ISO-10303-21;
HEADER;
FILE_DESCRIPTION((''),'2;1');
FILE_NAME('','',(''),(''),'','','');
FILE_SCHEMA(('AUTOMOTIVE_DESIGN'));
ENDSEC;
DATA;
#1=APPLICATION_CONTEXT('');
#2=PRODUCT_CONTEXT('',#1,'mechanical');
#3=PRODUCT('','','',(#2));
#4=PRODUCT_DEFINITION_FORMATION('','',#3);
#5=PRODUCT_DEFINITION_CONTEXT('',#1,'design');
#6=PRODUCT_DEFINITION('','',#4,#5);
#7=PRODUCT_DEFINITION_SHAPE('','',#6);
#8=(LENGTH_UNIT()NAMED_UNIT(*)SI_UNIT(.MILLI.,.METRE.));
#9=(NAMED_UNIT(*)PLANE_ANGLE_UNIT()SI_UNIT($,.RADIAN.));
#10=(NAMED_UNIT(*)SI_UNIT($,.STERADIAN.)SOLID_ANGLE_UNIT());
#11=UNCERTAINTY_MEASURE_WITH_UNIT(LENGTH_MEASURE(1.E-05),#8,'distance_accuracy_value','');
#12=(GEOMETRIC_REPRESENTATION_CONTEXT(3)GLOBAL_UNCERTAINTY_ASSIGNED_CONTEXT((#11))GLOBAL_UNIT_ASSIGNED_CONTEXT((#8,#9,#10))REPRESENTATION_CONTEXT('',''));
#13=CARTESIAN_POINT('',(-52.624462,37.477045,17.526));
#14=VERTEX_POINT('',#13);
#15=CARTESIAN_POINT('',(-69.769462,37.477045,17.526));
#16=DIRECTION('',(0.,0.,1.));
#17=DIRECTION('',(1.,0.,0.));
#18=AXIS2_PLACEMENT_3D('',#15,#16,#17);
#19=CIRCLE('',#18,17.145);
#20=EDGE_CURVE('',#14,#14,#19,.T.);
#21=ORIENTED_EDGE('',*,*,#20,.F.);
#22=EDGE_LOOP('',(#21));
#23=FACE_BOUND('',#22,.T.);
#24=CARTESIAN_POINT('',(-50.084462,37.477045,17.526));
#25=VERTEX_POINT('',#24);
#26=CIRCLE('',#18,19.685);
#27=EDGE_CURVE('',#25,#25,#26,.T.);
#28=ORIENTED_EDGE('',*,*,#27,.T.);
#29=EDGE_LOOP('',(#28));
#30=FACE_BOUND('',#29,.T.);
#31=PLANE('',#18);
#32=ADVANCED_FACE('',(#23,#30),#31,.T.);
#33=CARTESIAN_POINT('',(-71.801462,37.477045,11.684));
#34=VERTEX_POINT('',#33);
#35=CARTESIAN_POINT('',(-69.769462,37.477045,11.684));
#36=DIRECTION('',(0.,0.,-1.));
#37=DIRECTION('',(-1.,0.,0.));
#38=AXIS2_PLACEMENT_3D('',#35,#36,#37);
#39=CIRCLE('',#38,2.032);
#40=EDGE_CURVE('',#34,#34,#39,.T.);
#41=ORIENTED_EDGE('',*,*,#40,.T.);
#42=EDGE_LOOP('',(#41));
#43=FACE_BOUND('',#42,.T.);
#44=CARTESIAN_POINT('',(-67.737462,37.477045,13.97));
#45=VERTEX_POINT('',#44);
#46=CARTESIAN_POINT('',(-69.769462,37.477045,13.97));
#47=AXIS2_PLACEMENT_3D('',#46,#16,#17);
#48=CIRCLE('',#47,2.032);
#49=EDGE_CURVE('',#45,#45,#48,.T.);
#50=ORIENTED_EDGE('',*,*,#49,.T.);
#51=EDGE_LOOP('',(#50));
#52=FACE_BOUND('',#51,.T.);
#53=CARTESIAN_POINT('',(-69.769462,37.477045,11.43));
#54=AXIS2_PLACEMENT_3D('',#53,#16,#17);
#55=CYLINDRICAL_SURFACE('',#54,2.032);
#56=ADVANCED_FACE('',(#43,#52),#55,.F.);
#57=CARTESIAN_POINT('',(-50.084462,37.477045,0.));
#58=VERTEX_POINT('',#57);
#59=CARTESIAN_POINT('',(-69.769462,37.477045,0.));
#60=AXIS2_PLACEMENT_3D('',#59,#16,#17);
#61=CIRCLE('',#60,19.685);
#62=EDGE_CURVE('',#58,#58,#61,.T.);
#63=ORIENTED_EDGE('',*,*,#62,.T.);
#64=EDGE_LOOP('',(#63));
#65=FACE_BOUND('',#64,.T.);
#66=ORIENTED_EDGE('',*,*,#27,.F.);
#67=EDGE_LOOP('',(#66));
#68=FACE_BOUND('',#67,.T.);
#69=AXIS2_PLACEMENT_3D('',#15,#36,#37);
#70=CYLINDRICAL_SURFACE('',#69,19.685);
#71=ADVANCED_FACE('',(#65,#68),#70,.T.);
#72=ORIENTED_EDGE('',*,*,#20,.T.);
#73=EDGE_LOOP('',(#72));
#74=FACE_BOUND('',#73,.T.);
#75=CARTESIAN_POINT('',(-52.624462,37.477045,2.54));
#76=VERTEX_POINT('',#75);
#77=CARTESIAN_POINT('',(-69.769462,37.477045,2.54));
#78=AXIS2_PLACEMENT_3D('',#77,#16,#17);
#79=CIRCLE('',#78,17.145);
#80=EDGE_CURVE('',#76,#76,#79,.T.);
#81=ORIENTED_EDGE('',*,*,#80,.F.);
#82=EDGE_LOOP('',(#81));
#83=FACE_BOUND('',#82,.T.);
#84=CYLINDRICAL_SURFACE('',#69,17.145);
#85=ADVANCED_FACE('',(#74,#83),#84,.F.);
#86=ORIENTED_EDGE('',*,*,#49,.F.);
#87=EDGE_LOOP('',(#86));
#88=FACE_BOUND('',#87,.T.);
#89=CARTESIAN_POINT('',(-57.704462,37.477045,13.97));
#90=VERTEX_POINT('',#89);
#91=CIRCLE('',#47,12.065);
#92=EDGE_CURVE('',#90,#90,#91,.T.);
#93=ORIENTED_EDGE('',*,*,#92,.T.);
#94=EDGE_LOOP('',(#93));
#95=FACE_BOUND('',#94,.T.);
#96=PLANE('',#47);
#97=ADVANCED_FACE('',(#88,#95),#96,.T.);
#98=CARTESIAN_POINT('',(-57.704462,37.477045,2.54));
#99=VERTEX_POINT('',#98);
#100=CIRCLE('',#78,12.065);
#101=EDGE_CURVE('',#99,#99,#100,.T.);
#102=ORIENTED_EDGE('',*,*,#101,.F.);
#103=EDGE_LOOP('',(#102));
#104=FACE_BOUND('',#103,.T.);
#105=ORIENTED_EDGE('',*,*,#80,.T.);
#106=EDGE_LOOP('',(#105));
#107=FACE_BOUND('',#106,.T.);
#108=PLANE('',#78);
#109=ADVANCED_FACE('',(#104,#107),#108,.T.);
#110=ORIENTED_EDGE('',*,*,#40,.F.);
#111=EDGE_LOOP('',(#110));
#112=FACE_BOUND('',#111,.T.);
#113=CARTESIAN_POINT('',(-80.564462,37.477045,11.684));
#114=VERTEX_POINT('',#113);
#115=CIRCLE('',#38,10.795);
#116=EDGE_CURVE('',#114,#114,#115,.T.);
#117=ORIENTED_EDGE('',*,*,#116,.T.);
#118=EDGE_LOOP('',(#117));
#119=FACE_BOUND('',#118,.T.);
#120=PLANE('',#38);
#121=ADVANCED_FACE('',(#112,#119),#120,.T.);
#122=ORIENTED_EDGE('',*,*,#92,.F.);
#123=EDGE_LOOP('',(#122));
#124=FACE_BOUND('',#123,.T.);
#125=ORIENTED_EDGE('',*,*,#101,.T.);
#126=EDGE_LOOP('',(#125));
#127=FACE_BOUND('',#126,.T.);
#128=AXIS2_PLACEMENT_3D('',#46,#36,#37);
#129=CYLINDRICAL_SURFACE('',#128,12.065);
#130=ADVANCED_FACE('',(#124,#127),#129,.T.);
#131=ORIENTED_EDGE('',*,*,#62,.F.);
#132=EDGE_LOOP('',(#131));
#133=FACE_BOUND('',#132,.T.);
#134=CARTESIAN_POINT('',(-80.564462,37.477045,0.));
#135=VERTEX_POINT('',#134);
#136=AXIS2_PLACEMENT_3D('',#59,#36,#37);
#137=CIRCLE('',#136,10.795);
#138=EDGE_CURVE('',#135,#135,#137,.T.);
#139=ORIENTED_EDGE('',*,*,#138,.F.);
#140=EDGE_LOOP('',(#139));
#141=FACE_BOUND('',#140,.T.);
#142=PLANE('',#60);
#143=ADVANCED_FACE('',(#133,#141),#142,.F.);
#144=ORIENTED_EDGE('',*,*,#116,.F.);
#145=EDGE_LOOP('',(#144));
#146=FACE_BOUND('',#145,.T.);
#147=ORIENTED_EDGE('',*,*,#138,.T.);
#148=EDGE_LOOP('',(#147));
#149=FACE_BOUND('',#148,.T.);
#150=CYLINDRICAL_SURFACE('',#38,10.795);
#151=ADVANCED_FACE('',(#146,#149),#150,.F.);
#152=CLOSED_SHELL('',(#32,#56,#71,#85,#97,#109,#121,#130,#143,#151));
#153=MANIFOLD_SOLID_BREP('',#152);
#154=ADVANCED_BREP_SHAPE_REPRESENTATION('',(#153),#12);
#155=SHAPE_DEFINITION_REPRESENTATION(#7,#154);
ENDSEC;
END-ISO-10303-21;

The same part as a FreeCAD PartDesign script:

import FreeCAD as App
import Part
import Sketcher

V = App.Vector
Q = App.Units.Quantity


def faces_at(feature, points):
    """Names of the faces that lie closest to the given points."""
    faces = feature.Shape.Faces
    near = lambda p: min(range(len(faces)), key=lambda i: faces[i].distToShape(Part.Vertex(*p))[0])
    return sorted({f"Face{near(p) + 1}" for p in points})

doc = App.newDocument("Part")
body = doc.addObject("PartDesign::Body", "Body")

# Sketch on XY plane
sketch1 = body.newObject("Sketcher::SketchObject", "Sketch")
sketch1.AttachmentSupport = (doc.getObject("XY_Plane"), [""])
sketch1.MapMode = "FlatFace"
sketch1.addGeometry(Part.Circle(V(-70, 37, 0), V(0, 0, 1), 20), False)
sketch1.addConstraint(Sketcher.Constraint("Diameter", 0, Q("1.55 in")))
sketch1.addConstraint(Sketcher.Constraint("DistanceX", 0, 3, -1, 1, 69.769462))
sketch1.addConstraint(Sketcher.Constraint("DistanceY", -1, 1, 0, 3, 37.477045))
pad1 = body.newObject("PartDesign::Pad", "Pad")
pad1.Profile = sketch1
pad1.Length = Q("0.69 in")
doc.recompute()

thickness = body.newObject("PartDesign::Thickness", "Thickness")
thickness.Base = (pad1, faces_at(pad1, [(-69.769, 37.477, 17.526)]))
thickness.Value = Q("0.1 in")
thickness.Reversed = True
thickness.Join = "Intersection"

# Sketch on XY plane
sketch2 = body.newObject("Sketcher::SketchObject", "Sketch001")
sketch2.AttachmentSupport = (doc.getObject("XY_Plane"), [""])
sketch2.MapMode = "FlatFace"
sketch2.AttachmentOffset = App.Placement(V(0, 0, 0.1 * 25.4), App.Rotation())
sketch2.addGeometry(Part.Circle(V(-70, 37, 0), V(0, 0, 1), 12), False)
sketch2.addConstraint(Sketcher.Constraint("Diameter", 0, Q("0.95 in")))
sketch2.addConstraint(Sketcher.Constraint("DistanceX", 0, 3, -1, 1, 69.769462))
sketch2.addConstraint(Sketcher.Constraint("DistanceY", -1, 1, 0, 3, 37.477045))
pad2 = body.newObject("PartDesign::Pad", "Pad001")
pad2.Profile = sketch2
pad2.Length = Q("0.45 in")

# Sketch on XY plane
sketch3 = body.newObject("Sketcher::SketchObject", "Sketch002")
sketch3.AttachmentSupport = (doc.getObject("XY_Plane"), [""])
sketch3.MapMode = "FlatFace"
sketch3.addGeometry(Part.Circle(V(-70, 37, 0), V(0, 0, 1), 11), False)
sketch3.addConstraint(Sketcher.Constraint("Diameter", 0, Q("0.85 in")))
sketch3.addConstraint(Sketcher.Constraint("DistanceX", 0, 3, -1, 1, 69.769462))
sketch3.addConstraint(Sketcher.Constraint("DistanceY", -1, 1, 0, 3, 37.477045))
pocket1 = body.newObject("PartDesign::Pocket", "Pocket")
pocket1.Profile = sketch3
pocket1.Length = Q("0.46 in")
pocket1.Reversed = True

# Sketch on XY plane
sketch4 = body.newObject("Sketcher::SketchObject", "Sketch003")
sketch4.AttachmentSupport = (doc.getObject("XY_Plane"), [""])
sketch4.MapMode = "FlatFace"
sketch4.AttachmentOffset = App.Placement(V(0, 0, 0.55 * 25.4), App.Rotation())
sketch4.addGeometry(Part.Circle(V(-69.8, 37.5, 0), V(0, 0, 1), 2), False)
sketch4.addConstraint(Sketcher.Constraint("Diameter", 0, Q("0.16 in")))
sketch4.addConstraint(Sketcher.Constraint("DistanceX", 0, 3, -1, 1, 69.769462))
sketch4.addConstraint(Sketcher.Constraint("DistanceY", -1, 1, 0, 3, 37.477045))
pocket2 = body.newObject("PartDesign::Pocket", "Pocket001")
pocket2.Profile = sketch4
pocket2.Length = Q("0.1 in")

doc.recompute()
